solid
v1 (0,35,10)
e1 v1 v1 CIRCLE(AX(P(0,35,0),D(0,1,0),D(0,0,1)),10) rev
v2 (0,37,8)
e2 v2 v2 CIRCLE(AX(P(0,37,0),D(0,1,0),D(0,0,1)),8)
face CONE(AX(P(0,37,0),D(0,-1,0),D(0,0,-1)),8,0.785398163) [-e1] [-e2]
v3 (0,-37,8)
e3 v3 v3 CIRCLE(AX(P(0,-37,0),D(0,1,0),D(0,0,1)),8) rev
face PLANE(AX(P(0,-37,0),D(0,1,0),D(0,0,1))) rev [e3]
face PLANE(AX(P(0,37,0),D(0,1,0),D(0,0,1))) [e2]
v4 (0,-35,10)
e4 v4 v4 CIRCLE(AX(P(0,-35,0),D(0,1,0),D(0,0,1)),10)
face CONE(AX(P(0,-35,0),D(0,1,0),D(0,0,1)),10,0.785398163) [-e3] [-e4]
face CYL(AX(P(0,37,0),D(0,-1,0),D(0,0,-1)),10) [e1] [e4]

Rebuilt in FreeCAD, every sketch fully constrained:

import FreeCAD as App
import Part
import Sketcher


def edges_at(feature, points):
    """Names of the edges that pass closest to the given points."""
    edges = feature.Shape.Edges
    near = lambda p: min(range(len(edges)), key=lambda i: edges[i].distToShape(Part.Vertex(*p))[0])
    return sorted({f"Edge{near(p) + 1}" for p in points})

doc = App.newDocument("Part")
body = doc.addObject("PartDesign::Body", "Body")

# Sketch on XZ plane
sketch1 = body.newObject("Sketcher::SketchObject", "Sketch")
sketch1.AttachmentSupport = (doc.getObject("XZ_Plane"), [""])
sketch1.MapMode = "FlatFace"
sketch1.addGeometry(Part.Circle(App.Vector(0, 0, 0), App.Vector(0, 0, 1), 10), False)
sketch1.addConstraint(Sketcher.Constraint("Coincident", 0, 3, -1, 1))
sketch1.addConstraint(Sketcher.Constraint("Diameter", 0, 20.0))
pad1 = body.newObject("PartDesign::Pad", "Pad")
pad1.Profile = sketch1
pad1.Length = 74
pad1.Midplane = True
doc.recompute()

chamfer = body.newObject("PartDesign::Chamfer", "Chamfer")
chamfer.Base = (pad1, edges_at(pad1, [(-10, -37, 0), (-10, 37, 0)]))
chamfer.Size = 2

doc.recompute()
